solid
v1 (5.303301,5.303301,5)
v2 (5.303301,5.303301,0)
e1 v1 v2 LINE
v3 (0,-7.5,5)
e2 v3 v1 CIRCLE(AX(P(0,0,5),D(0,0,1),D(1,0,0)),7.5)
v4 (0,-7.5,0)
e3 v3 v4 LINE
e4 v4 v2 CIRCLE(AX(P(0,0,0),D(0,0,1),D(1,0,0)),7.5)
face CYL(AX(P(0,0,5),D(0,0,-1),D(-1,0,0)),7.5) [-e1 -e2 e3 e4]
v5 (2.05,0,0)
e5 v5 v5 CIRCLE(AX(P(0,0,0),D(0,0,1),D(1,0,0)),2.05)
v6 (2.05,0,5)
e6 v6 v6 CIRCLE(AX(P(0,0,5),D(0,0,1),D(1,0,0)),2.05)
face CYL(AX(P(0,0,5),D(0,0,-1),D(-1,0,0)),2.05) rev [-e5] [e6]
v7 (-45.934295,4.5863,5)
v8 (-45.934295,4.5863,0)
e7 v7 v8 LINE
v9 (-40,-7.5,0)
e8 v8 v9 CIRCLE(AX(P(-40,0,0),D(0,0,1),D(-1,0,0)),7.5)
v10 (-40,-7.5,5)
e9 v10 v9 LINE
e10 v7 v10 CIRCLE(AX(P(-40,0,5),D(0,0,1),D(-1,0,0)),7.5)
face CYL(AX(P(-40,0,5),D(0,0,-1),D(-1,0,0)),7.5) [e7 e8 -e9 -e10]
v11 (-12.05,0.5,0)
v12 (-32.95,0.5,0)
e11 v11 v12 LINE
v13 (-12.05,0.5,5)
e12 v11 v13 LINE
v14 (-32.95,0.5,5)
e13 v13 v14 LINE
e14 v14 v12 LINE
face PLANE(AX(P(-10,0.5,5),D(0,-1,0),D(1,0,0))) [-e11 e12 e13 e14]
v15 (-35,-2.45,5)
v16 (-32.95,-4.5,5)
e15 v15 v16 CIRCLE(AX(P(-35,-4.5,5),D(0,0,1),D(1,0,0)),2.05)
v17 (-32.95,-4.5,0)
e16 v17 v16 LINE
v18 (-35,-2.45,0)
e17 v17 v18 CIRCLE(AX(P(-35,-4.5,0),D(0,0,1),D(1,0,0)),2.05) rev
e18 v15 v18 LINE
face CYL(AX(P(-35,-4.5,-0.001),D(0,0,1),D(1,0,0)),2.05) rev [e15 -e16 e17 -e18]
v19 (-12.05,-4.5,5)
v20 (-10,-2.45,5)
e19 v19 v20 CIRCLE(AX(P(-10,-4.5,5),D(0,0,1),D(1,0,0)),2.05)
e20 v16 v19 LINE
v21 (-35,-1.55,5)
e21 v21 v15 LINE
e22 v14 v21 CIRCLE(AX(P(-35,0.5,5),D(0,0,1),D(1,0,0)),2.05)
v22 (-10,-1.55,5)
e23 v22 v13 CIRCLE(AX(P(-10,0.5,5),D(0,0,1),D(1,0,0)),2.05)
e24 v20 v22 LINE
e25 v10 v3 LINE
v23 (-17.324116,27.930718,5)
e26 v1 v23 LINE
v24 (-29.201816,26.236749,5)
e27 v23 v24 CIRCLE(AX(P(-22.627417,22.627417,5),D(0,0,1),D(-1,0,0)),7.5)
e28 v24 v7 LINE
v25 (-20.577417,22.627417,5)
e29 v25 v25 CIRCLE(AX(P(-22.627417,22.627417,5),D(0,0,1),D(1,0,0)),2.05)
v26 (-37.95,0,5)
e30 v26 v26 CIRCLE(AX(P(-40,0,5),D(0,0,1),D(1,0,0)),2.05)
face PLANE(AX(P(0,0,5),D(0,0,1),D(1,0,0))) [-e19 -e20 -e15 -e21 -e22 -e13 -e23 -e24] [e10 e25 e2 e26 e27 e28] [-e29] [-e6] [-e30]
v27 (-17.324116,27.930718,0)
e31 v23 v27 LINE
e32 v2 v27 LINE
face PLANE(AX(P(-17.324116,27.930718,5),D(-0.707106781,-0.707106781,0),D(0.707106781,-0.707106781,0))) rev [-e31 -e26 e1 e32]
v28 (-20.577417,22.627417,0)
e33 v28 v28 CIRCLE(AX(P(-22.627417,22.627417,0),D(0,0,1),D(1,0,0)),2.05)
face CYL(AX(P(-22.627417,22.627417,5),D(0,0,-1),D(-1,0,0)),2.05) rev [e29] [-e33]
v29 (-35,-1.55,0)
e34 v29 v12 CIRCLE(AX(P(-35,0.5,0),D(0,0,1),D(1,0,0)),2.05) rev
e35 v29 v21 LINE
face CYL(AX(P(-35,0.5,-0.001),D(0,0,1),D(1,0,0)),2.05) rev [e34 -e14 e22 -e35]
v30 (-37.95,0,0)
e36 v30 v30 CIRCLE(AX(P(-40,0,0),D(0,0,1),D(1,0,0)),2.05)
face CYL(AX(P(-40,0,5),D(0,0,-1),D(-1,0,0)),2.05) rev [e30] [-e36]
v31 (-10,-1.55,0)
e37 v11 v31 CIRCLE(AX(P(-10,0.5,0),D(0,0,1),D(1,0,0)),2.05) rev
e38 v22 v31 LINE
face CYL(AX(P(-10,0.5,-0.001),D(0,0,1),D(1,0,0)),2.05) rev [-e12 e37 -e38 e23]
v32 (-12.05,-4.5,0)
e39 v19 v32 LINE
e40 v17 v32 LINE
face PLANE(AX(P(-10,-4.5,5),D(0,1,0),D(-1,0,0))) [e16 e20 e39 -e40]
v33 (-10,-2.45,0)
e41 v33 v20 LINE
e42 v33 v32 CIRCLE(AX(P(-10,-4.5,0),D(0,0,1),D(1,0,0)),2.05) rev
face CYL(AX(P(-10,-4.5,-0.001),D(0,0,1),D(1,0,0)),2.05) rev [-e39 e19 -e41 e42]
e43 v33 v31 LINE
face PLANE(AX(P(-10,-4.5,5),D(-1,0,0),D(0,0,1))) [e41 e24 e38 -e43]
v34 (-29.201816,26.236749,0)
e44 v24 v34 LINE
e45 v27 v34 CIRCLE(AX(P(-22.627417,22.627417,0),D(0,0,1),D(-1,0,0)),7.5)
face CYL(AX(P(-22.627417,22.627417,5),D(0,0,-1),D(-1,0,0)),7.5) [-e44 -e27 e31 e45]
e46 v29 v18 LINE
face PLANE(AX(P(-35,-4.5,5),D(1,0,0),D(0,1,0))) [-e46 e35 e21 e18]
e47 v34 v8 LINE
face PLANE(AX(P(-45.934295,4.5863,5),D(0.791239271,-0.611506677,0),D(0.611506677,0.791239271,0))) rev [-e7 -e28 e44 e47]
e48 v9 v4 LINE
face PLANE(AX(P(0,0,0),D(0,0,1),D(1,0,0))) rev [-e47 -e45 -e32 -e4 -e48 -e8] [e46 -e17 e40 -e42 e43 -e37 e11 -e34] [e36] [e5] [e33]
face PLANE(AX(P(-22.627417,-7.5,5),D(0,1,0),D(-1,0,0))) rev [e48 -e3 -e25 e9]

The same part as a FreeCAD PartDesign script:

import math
import FreeCAD as App
import Part
import Sketcher
Q = App.Units.Quantity


def add_polygon(sketch, points):
    """Adds a closed chain of lines whose ends are joined by coincident constraints."""
    first, n = sketch.GeometryCount, len(points)
    for a, b in zip(points, points[1:] + points[:1]):
        sketch.addGeometry(Part.LineSegment(App.Vector(*a, 0), App.Vector(*b, 0)), False)
    for i in range(n):
        sketch.addConstraint(Sketcher.Constraint("Coincident", first + i, 2, first + (i + 1) % n, 1))

doc = App.newDocument("Part")
body = doc.addObject("PartDesign::Body", "Body")

# Sketch on XY plane
sketch1 = body.newObject("Sketcher::SketchObject", "Sketch")
sketch1.AttachmentSupport = (doc.getObject("XY_Plane"), [""])
sketch1.MapMode = "FlatFace"
sketch1.addGeometry(Part.ArcOfCircle(Part.Circle(App.Vector(0, 0, 0), App.Vector(0, 0, 1), 7.5), math.radians(-90), math.radians(45)), False)  # 0
sketch1.addGeometry(Part.LineSegment(App.Vector(5.303301, 5.303301, 0), App.Vector(-17.324116, 27.930718, 0)), False)  # 1
sketch1.addGeometry(Part.ArcOfCircle(Part.Circle(App.Vector(-22.627417, 22.627417, 0), App.Vector(0, 0, 1), 7.5), math.radians(45), math.radians(151.2333)), False)  # 2
sketch1.addGeometry(Part.LineSegment(App.Vector(-29.201816, 26.236749, 0), App.Vector(-45.934295, 4.5863, 0)), False)  # 3
sketch1.addGeometry(Part.ArcOfCircle(Part.Circle(App.Vector(-40, 0, 0), App.Vector(0, 0, 1), 7.5), math.radians(142.301475), math.radians(270)), False)  # 4
sketch1.addGeometry(Part.LineSegment(App.Vector(-40, -7.5, 0), App.Vector(0, -7.5, 0)), False)  # 5
sketch1.addGeometry(Part.Circle(App.Vector(-40, 0, 0), App.Vector(0, 0, 1), 2.05), False)  # 6
add_polygon(sketch1, [(-10, -4.5), (-35, -4.5), (-35, 0.5), (-10, 0.5)])  # lines 7-10
sketch1.addGeometry(Part.Circle(App.Vector(0, 0, 0), App.Vector(0, 0, 1), 2.05), False)  # 11
sketch1.addGeometry(Part.Circle(App.Vector(-22.627417, 22.627417, 0), App.Vector(0, 0, 1), 2.05), False)  # 12
sketch1.addConstraint(Sketcher.Constraint("Tangent", 0, 2, 1, 1))
sketch1.addConstraint(Sketcher.Constraint("Tangent", 1, 2, 2, 1))
sketch1.addConstraint(Sketcher.Constraint("Coincident", 2, 2, 3, 1))
sketch1.addConstraint(Sketcher.Constraint("Tangent", 3, 2, 4, 1))
sketch1.addConstraint(Sketcher.Constraint("Tangent", 4, 2, 5, 1))
sketch1.addConstraint(Sketcher.Constraint("Tangent", 5, 2, 0, 1))
sketch1.addConstraint(Sketcher.Constraint("Horizontal", 5))
sketch1.addConstraint(Sketcher.Constraint("Horizontal", 7))
sketch1.addConstraint(Sketcher.Constraint("Vertical", 8))
sketch1.addConstraint(Sketcher.Constraint("Horizontal", 9))
sketch1.addConstraint(Sketcher.Constraint("Vertical", 10))
sketch1.addConstraint(Sketcher.Constraint("Coincident", 0, 3, -1, 1))
sketch1.addConstraint(Sketcher.Constraint("Coincident", 11, 3, -1, 1))
sketch1.addConstraint(Sketcher.Constraint("Coincident", 6, 3, 4, 3))
sketch1.addConstraint(Sketcher.Constraint("Coincident", 12, 3, 2, 3))
sketch1.addConstraint(Sketcher.Constraint("Equal", 0, 2))
sketch1.addConstraint(Sketcher.Constraint("Equal", 2, 4))
sketch1.addConstraint(Sketcher.Constraint("Equal", 6, 11))
sketch1.addConstraint(Sketcher.Constraint("Equal", 11, 12))
sketch1.addConstraint(Sketcher.Constraint("Diameter", 6, 4.1))
sketch1.addConstraint(Sketcher.Constraint("Radius", 0, 7.5))
sketch1.addConstraint(Sketcher.Constraint("DistanceX", 5, 1, 5, 2, 40.0))
sketch1.addConstraint(Sketcher.Constraint("DistanceX", 7, 2, 7, 1, 25.0))
sketch1.addConstraint(Sketcher.Constraint("DistanceY", 8, 1, 8, 2, 5.0))
sketch1.addConstraint(Sketcher.Constraint("Angle", 1, Q("135 deg")))
sketch1.addConstraint(Sketcher.Constraint("Distance", 1, 32.0))
sketch1.addConstraint(Sketcher.Constraint("DistanceX", 7, 2, -1, 1, 35.0))
sketch1.addConstraint(Sketcher.Constraint("DistanceY", 4, 2, 7, 2, 3.0))
sketch1.addConstraint(Sketcher.Constraint("DistanceY", -1, 1, 3, 2, 4.5863))
pad1 = body.newObject("PartDesign::Pad", "Pad")
pad1.Profile = sketch1
pad1.Length = 5

# Sketch on XY plane
sketch2 = body.newObject("Sketcher::SketchObject", "Sketch001")
sketch2.AttachmentSupport = (doc.getObject("XY_Plane"), [""])
sketch2.MapMode = "FlatFace"
sketch2.AttachmentOffset = App.Placement(App.Vector(0, 0, 5), App.Rotation())
sketch2.addGeometry(Part.Circle(App.Vector(-35, 0.5, 0), App.Vector(0, 0, 1), 2.05), False)
sketch2.addConstraint(Sketcher.Constraint("Diameter", 0, 4.1))
sketch2.addConstraint(Sketcher.Constraint("DistanceX", 0, 3, -1, 1, 35.0))
sketch2.addConstraint(Sketcher.Constraint("DistanceY", -1, 1, 0, 3, 0.5))
pocket1 = body.newObject("PartDesign::Pocket", "Pocket")
pocket1.Profile = sketch2
pocket1.Type = "UpToFirst"

# Sketch on XY plane
sketch3 = body.newObject("Sketcher::SketchObject", "Sketch002")
sketch3.AttachmentSupport = (doc.getObject("XY_Plane"), [""])
sketch3.MapMode = "FlatFace"
sketch3.AttachmentOffset = App.Placement(App.Vector(0, 0, 5), App.Rotation())
sketch3.addGeometry(Part.Circle(App.Vector(-35, -4.5, 0), App.Vector(0, 0, 1), 2.05), False)
sketch3.addConstraint(Sketcher.Constraint("Diameter", 0, 4.1))
sketch3.addConstraint(Sketcher.Constraint("DistanceX", 0, 3, -1, 1, 35.0))
sketch3.addConstraint(Sketcher.Constraint("DistanceY", 0, 3, -1, 1, 4.5))
pocket2 = body.newObject("PartDesign::Pocket", "Pocket001")
pocket2.Profile = sketch3
pocket2.Type = "UpToFirst"

# Sketch on XY plane
sketch4 = body.newObject("Sketcher::SketchObject", "Sketch003")
sketch4.AttachmentSupport = (doc.getObject("XY_Plane"), [""])
sketch4.MapMode = "FlatFace"
sketch4.AttachmentOffset = App.Placement(App.Vector(0, 0, 5), App.Rotation())
sketch4.addGeometry(Part.Circle(App.Vector(-10, -4.5, 0), App.Vector(0, 0, 1), 2.05), False)
sketch4.addConstraint(Sketcher.Constraint("Diameter", 0, 4.1))
sketch4.addConstraint(Sketcher.Constraint("DistanceX", 0, 3, -1, 1, 10.0))
sketch4.addConstraint(Sketcher.Constraint("DistanceY", 0, 3, -1, 1, 4.5))
pocket3 = body.newObject("PartDesign::Pocket", "Pocket002")
pocket3.Profile = sketch4
pocket3.Type = "UpToFirst"

# Sketch on XY plane
sketch5 = body.newObject("Sketcher::SketchObject", "Sketch004")
sketch5.AttachmentSupport = (doc.getObject("XY_Plane"), [""])
sketch5.MapMode = "FlatFace"
sketch5.AttachmentOffset = App.Placement(App.Vector(0, 0, 5), App.Rotation())
sketch5.addGeometry(Part.Circle(App.Vector(-10, 0.5, 0), App.Vector(0, 0, 1), 2.05), False)
sketch5.addConstraint(Sketcher.Constraint("Diameter", 0, 4.1))
sketch5.addConstraint(Sketcher.Constraint("DistanceX", 0, 3, -1, 1, 10.0))
sketch5.addConstraint(Sketcher.Constraint("DistanceY", -1, 1, 0, 3, 0.5))
pocket4 = body.newObject("PartDesign::Pocket", "Pocket003")
pocket4.Profile = sketch5
pocket4.Type = "UpToFirst"

doc.recompute()
